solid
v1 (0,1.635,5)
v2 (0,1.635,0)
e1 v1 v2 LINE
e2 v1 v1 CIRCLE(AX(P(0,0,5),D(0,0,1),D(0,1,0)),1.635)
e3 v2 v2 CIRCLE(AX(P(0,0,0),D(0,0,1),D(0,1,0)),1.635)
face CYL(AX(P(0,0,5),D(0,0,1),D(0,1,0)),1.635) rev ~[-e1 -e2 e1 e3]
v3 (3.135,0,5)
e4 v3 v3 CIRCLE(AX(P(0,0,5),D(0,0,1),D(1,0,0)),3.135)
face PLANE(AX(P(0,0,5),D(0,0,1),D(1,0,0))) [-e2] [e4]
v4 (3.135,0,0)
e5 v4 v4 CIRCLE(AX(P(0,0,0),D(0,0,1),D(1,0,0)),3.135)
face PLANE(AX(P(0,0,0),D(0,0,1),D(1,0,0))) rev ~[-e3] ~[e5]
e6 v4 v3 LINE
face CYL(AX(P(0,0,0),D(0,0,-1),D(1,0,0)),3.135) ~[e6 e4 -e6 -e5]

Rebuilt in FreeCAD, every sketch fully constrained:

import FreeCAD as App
import Part
import Sketcher
from FreeCAD import Vector
Q = App.Units.Quantity

doc = App.newDocument("Part")
body = doc.addObject("PartDesign::Body", "Body")

sketch1 = body.newObject("Sketcher::SketchObject", "Sketch")
sketch1.AttachmentSupport = (doc.getObject("XY_Plane"), [""])
sketch1.MapMode = "FlatFace"
sketch1.addGeometry(Part.Circle(Vector(0, 0, 0), Vector(0, 0, 1), 3.1), False)
sketch1.addConstraint([
    Sketcher.Constraint("Coincident", 0, 3, -1, 1),
    Sketcher.Constraint("Diameter", 0, Q("6.27 mm")),
])
pad1 = body.newObject("PartDesign::Pad", "Pad")
pad1.Profile = sketch1
pad1.Length = 5

sketch2 = body.newObject("Sketcher::SketchObject", "Sketch001")
sketch2.AttachmentSupport = (doc.getObject("XY_Plane"), [""])
sketch2.MapMode = "FlatFace"
sketch2.AttachmentOffset = App.Placement(Vector(0, 0, 5), App.Rotation())
sketch2.addGeometry(Part.Circle(Vector(0, 0, 0), Vector(0, 0, 1), 1.6), False)
sketch2.addConstraint([
    Sketcher.Constraint("Coincident", 0, 3, -1, 1),
    Sketcher.Constraint("Diameter", 0, Q("3.27 mm")),
])
pocket1 = body.newObject("PartDesign::Pocket", "Pocket")
pocket1.Profile = sketch2
pocket1.Length = 8.0975

doc.recompute()
